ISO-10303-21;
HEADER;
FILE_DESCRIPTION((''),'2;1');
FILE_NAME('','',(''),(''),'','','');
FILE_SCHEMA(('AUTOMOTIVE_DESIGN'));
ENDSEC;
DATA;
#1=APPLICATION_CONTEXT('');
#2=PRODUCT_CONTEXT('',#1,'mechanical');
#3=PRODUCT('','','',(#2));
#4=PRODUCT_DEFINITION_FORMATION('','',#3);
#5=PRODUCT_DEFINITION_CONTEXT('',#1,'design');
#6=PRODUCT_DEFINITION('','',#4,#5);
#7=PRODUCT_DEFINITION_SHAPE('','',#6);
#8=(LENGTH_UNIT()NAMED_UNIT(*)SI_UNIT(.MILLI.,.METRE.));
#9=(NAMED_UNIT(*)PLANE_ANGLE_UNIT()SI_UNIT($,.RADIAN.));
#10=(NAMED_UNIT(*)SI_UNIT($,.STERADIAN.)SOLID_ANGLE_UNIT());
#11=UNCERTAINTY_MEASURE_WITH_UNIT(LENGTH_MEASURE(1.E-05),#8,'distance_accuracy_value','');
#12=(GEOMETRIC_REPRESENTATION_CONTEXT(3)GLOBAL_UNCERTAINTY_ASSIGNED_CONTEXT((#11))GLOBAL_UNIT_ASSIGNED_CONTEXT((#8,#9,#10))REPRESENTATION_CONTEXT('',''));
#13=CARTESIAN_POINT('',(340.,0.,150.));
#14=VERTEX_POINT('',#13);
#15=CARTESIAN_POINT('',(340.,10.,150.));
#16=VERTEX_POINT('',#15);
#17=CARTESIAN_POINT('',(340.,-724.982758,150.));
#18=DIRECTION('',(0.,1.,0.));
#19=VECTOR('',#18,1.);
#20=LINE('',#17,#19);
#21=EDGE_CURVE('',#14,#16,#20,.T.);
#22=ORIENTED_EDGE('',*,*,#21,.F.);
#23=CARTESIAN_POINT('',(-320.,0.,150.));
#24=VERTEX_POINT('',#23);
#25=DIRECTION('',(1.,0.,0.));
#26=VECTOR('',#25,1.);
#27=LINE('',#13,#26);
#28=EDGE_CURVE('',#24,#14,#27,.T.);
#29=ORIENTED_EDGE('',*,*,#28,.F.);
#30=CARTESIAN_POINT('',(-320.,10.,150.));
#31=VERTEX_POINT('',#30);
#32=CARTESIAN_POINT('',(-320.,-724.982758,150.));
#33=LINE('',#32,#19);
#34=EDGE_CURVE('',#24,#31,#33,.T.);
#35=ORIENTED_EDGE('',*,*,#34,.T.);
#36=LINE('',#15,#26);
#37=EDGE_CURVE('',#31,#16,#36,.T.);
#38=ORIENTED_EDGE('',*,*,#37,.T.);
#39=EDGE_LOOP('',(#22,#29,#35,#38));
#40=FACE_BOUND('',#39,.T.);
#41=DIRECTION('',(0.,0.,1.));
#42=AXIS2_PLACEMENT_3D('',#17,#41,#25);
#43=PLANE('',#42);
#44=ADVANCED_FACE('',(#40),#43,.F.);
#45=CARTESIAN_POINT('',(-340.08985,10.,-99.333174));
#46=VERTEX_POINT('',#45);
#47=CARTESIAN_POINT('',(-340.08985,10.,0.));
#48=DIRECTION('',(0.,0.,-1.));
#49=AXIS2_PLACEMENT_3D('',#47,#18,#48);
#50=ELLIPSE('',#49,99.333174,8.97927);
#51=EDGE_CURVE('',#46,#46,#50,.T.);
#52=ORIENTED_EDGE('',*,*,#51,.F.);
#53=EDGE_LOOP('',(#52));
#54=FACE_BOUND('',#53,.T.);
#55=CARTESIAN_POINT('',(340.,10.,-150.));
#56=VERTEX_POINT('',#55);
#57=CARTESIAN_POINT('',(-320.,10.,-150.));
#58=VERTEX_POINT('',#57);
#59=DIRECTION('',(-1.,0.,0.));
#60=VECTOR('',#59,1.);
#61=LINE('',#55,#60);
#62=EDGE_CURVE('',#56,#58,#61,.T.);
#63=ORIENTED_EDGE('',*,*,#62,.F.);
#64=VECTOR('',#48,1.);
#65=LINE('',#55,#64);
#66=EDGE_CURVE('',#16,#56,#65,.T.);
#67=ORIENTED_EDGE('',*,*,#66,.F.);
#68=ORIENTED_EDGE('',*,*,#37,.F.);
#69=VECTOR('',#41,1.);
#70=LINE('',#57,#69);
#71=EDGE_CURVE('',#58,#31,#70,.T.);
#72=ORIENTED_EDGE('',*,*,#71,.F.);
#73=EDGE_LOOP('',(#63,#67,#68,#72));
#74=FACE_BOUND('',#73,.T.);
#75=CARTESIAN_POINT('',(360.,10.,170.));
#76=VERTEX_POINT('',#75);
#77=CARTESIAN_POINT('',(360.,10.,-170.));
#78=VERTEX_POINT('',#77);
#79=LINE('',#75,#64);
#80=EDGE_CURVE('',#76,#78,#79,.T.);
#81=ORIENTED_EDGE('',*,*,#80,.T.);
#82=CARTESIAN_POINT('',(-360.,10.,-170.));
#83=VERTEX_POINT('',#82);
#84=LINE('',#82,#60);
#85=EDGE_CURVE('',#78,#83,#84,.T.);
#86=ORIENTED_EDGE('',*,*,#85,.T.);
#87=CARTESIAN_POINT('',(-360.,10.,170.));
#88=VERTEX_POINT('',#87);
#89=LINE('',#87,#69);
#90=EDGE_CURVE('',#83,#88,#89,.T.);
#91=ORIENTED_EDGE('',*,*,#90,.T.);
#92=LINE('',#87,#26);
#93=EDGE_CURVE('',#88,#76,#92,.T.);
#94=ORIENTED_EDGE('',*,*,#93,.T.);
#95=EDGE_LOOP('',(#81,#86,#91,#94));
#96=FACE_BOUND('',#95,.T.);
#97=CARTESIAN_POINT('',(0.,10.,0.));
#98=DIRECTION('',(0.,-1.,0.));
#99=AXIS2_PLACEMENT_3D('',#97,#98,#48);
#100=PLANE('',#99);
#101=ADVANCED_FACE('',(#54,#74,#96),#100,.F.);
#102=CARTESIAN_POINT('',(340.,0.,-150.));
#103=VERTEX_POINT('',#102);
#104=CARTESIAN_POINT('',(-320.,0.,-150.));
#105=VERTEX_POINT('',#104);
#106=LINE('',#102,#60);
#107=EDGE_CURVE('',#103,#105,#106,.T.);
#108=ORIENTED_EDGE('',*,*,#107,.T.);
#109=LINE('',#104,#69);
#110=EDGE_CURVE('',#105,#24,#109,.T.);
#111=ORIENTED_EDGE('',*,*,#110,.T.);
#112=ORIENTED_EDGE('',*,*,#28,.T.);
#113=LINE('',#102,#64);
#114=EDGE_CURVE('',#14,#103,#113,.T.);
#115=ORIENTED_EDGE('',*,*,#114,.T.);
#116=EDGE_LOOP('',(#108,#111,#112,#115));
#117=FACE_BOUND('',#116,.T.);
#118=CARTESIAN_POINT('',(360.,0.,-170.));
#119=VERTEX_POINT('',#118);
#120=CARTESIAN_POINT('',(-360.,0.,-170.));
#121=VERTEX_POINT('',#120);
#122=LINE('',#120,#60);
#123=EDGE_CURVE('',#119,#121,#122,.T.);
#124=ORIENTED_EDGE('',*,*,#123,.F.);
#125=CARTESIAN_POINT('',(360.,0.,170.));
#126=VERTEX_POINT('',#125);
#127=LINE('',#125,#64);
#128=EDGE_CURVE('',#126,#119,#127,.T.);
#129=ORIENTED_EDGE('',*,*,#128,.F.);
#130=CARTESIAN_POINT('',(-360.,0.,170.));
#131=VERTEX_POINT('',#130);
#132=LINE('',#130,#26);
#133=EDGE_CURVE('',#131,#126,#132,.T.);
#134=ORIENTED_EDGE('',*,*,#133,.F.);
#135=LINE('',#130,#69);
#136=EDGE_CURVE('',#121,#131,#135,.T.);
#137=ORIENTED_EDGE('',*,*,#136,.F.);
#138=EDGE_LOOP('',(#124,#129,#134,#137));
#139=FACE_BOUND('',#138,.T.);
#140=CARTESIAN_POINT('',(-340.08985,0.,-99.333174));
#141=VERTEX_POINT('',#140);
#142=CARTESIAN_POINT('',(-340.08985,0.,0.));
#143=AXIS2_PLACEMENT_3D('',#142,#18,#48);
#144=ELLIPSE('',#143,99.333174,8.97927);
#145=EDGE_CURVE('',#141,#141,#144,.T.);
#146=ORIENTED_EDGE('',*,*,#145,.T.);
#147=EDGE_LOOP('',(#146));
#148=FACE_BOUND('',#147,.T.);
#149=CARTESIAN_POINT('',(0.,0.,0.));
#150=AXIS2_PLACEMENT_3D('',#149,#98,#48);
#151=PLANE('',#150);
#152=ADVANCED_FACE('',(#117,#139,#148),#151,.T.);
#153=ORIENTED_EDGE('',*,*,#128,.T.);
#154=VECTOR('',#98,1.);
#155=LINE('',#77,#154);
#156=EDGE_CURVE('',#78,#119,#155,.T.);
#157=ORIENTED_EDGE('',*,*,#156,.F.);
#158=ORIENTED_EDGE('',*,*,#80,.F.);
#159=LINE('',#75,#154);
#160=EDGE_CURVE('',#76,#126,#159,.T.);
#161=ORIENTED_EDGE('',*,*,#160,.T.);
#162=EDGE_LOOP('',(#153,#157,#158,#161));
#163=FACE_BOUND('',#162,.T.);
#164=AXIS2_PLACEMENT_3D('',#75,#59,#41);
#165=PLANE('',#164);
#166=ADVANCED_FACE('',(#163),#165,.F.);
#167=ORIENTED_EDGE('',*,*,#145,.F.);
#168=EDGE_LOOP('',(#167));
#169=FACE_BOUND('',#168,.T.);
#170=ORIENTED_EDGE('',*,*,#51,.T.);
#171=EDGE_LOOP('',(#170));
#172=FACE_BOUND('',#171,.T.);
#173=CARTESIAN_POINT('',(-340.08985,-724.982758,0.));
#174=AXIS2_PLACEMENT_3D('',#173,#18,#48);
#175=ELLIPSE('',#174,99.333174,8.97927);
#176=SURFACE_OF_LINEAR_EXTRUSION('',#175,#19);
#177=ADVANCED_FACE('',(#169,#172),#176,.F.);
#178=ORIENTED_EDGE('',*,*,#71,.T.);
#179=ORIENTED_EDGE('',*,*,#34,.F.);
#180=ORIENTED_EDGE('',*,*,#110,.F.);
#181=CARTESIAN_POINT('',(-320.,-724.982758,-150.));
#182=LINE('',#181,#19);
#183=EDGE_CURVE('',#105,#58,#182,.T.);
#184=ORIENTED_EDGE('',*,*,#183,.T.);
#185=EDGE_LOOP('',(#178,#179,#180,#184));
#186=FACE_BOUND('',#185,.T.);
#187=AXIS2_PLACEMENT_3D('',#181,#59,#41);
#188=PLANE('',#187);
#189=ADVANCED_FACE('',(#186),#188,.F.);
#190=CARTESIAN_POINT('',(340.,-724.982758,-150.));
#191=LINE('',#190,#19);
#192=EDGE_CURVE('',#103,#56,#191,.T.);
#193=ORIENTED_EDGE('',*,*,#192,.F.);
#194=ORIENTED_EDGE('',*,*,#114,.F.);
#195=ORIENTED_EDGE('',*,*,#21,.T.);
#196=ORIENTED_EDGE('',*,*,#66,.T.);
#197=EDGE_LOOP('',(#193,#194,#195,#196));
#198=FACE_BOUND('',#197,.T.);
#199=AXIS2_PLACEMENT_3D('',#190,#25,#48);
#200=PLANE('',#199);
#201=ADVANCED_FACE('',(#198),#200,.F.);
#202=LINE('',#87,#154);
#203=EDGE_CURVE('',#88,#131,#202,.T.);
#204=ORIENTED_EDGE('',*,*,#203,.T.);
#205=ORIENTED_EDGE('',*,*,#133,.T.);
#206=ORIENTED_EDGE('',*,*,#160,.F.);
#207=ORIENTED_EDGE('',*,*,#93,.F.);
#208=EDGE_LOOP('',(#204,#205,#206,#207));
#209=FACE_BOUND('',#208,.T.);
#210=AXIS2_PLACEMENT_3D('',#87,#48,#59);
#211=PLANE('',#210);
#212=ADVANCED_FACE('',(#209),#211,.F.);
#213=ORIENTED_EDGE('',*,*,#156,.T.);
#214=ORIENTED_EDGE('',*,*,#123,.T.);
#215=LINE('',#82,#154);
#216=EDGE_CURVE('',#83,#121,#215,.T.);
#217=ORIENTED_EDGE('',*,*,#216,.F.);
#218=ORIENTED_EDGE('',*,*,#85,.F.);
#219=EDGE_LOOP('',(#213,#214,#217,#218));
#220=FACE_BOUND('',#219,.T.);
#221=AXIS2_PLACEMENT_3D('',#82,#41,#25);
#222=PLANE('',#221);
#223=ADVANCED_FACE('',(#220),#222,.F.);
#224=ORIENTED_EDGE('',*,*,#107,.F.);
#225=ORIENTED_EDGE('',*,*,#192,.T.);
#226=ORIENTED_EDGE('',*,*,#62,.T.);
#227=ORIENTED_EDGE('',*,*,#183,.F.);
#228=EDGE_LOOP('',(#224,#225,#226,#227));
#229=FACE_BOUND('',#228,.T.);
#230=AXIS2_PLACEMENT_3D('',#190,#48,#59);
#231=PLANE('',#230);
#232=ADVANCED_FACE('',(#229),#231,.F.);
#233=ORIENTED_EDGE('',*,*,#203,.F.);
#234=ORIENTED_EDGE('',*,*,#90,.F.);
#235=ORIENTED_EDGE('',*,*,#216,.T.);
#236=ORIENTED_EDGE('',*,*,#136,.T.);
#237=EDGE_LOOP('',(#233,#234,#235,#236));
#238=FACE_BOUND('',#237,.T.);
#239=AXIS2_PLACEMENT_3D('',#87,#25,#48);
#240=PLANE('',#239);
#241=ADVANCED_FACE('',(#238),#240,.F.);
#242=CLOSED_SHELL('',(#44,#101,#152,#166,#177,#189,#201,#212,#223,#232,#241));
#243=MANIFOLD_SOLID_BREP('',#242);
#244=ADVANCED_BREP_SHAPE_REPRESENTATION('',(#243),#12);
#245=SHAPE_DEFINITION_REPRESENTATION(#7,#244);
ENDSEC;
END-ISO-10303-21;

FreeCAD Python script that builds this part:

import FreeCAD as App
import Part
import Sketcher
Q = App.Units.Quantity


def add_polygon(sketch, points):
    """Adds a closed chain of lines whose ends are joined by coincident constraints."""
    first, n = sketch.GeometryCount, len(points)
    for a, b in zip(points, points[1:] + points[:1]):
        sketch.addGeometry(Part.LineSegment(App.Vector(*a, 0), App.Vector(*b, 0)), False)
    for i in range(n):
        sketch.addConstraint(Sketcher.Constraint("Coincident", first + i, 2, first + (i + 1) % n, 1))

doc = App.newDocument("Part")
params = doc.addObject("Spreadsheet::Sheet", "Params")
for row, (alias, value) in enumerate([
    ("sketch1_width", "720 mm"),
    ("sketch1_height", "340 mm"),
    ("pad1_length", "10 mm"),
    ("sketch2_width", "660 mm"),
    ("sketch2_height", "300 mm"),
    ("pocket1_length", "10 mm"),
], start=1):
    params.set(f"A{row}", alias)
    params.set(f"B{row}", "=" + value)
    params.setAlias(f"B{row}", alias)

body = doc.addObject("PartDesign::Body", "Body")

sketch1 = body.newObject("Sketcher::SketchObject", "Sketch")
sketch1.AttachmentSupport = (doc.getObject("XZ_Plane"), [""])
sketch1.MapMode = "FlatFace"
add_polygon(sketch1, [(-360, -170), (-360, 170), (360, 170), (360, -170)])
sketch1.addConstraint(Sketcher.Constraint("Vertical", 0))
sketch1.addConstraint(Sketcher.Constraint("Horizontal", 1))
sketch1.addConstraint(Sketcher.Constraint("Vertical", 2))
sketch1.addConstraint(Sketcher.Constraint("Horizontal", 3))
sketch1.addConstraint(Sketcher.Constraint("Symmetric", 0, 2, 2, 2, -1, 1))
sketch1.addConstraint(Sketcher.Constraint("DistanceX", 1, 1, 1, 2, Q("720 mm")))
sketch1.addConstraint(Sketcher.Constraint("DistanceY", 0, 1, 0, 2, Q("340 mm")))
sketch1.setExpression("Constraints[9]", "Params.sketch1_width")
sketch1.setExpression("Constraints[10]", "Params.sketch1_height")
pad1 = body.newObject("PartDesign::Pad", "Pad")
pad1.Profile = sketch1
pad1.setExpression("Length", "Params.pad1_length")
pad1.Reversed = True

sketch2 = body.newObject("Sketcher::SketchObject", "Sketch001")
sketch2.AttachmentSupport = (doc.getObject("XZ_Plane"), [""])
sketch2.MapMode = "FlatFace"
sketch2.AttachmentOffset = App.Placement(App.Vector(0, 0, -10), App.Rotation())
sketch2.addGeometry(Part.Ellipse(App.Vector(-340.08985, -99.333174, 0), App.Vector(-331.11058, 0, 0), App.Vector(-340.08985, 0, 0)), False)
add_polygon(sketch2, [(-320, -150), (-320, 150), (340, 150), (340, -150)])
sketch2.addConstraint(Sketcher.Constraint("Block", 0))
sketch2.addConstraint(Sketcher.Constraint("Vertical", 1))
sketch2.addConstraint(Sketcher.Constraint("Horizontal", 2))
sketch2.addConstraint(Sketcher.Constraint("Vertical", 3))
sketch2.addConstraint(Sketcher.Constraint("Horizontal", 4))
sketch2.addConstraint(Sketcher.Constraint("DistanceX", 2, 1, 2, 2, Q("660 mm")))
sketch2.addConstraint(Sketcher.Constraint("DistanceY", 1, 1, 1, 2, Q("300 mm")))
sketch2.addConstraint(Sketcher.Constraint("DistanceX", 1, 2, -1, 1, Q("320 mm")))
sketch2.addConstraint(Sketcher.Constraint("DistanceY", -1, 1, 1, 2, Q("150 mm")))
sketch2.setExpression("Constraints[9]", "Params.sketch2_width")
sketch2.setExpression("Constraints[10]", "Params.sketch2_height")
pocket1 = body.newObject("PartDesign::Pocket", "Pocket")
pocket1.Profile = sketch2
pocket1.setExpression("Length", "Params.pocket1_length")
pocket1.Reversed = True

doc.recompute()
